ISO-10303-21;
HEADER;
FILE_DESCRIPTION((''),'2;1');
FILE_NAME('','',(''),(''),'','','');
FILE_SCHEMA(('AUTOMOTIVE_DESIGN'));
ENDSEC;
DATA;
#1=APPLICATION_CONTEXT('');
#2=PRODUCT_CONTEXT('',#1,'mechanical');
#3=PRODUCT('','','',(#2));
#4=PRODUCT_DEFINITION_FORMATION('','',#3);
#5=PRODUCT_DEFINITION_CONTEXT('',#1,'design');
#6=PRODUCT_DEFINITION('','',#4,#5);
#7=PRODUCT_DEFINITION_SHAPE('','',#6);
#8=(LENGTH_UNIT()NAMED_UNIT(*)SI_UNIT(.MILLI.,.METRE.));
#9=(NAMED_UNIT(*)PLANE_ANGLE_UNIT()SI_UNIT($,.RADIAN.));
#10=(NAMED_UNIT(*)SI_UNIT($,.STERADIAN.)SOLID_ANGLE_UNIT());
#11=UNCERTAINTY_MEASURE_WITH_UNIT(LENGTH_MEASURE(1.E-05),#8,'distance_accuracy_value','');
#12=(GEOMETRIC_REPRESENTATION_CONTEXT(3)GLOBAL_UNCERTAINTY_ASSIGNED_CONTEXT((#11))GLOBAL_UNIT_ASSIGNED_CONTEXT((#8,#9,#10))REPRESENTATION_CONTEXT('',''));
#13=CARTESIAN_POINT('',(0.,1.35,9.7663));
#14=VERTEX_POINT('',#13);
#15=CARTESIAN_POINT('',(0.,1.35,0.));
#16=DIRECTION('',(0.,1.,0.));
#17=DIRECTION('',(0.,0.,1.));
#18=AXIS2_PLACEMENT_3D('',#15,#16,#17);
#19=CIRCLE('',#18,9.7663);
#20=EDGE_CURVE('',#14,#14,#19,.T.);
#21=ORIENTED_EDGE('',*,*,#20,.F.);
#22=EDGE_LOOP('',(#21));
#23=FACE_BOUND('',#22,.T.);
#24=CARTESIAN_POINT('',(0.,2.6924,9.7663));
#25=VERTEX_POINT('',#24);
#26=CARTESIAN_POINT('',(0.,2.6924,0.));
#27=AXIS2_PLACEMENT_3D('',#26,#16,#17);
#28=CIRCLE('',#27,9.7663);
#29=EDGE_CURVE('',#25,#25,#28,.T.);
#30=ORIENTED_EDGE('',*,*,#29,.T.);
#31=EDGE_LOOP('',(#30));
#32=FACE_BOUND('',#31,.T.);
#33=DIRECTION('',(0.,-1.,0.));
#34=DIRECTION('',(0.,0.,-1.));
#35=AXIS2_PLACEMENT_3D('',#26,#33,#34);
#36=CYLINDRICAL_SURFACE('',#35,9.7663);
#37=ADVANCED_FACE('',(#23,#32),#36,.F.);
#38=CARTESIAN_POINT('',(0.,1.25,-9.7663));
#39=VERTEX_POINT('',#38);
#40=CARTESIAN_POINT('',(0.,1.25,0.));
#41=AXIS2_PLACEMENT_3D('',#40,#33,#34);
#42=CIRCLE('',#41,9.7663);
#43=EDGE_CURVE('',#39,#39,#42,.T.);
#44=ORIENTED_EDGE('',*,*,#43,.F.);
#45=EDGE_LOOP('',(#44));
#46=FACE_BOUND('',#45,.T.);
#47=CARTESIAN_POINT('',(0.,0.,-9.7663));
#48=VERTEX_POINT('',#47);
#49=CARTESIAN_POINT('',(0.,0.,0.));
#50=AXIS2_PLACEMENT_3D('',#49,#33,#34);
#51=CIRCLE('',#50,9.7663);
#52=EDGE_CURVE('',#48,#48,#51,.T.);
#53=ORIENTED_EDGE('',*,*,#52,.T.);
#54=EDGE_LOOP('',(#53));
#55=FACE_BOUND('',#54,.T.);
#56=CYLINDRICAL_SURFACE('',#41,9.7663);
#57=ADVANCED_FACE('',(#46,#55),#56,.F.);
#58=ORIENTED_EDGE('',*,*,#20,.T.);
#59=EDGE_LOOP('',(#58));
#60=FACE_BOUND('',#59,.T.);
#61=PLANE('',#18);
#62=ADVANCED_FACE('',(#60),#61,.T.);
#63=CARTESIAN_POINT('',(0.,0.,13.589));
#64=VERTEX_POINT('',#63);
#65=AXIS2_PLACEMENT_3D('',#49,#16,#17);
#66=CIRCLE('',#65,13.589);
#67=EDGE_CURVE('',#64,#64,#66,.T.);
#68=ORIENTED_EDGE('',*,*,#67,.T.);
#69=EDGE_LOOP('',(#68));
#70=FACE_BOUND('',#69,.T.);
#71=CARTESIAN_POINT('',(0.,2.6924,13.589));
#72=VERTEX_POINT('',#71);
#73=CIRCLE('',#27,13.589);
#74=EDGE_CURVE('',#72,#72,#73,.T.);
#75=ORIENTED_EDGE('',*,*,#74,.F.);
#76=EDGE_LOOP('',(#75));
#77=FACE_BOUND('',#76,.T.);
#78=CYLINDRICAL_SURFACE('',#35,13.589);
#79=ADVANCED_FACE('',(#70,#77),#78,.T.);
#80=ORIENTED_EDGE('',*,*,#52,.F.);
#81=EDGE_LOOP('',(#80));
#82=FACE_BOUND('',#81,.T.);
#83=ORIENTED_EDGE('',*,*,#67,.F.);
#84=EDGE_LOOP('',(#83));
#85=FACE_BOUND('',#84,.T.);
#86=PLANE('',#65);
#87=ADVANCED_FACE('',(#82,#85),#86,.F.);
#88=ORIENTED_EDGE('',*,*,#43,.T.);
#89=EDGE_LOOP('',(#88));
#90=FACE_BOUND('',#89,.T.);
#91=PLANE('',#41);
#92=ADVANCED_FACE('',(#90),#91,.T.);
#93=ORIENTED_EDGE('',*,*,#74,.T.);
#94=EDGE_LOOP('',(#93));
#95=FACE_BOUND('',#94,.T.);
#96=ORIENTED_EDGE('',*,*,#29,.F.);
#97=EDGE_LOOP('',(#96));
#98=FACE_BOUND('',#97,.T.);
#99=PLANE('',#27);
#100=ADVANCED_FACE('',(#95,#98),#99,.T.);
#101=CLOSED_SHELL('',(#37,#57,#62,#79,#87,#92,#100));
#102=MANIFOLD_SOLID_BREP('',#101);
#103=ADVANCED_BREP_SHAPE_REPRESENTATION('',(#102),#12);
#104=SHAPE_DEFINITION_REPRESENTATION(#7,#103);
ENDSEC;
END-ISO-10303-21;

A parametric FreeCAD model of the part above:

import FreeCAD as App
import Part
import Sketcher

V = App.Vector
Q = App.Units.Quantity

doc = App.newDocument("Part")
body = doc.addObject("PartDesign::Body", "Body")

sketch1 = body.newObject("Sketcher::SketchObject", "Sketch")
sketch1.AttachmentSupport = (doc.getObject("XZ_Plane"), [""])
sketch1.MapMode = "FlatFace"
sketch1.addGeometry([
    Part.Circle(V(0, 0, 0), V(0, 0, 1), 14),
    Part.Circle(V(0, 0, 0), V(0, 0, 1), 10),
], False)
sketch1.addConstraint([
    Sketcher.Constraint("Coincident", 0, 3, -1, 1),
    Sketcher.Constraint("Coincident", 1, 3, -1, 1),
    Sketcher.Constraint("Diameter", 0, Q("1.07 in")),
    Sketcher.Constraint("Diameter", 1, Q("0.769 in")),
])
pad1 = body.newObject("PartDesign::Pad", "Pad")
pad1.Profile = sketch1
pad1.Length = Q("0.106 in")
pad1.Reversed = True

sketch2 = body.newObject("Sketcher::SketchObject", "Sketch001")
sketch2.AttachmentSupport = (doc.getObject("XZ_Plane"), [""])
sketch2.MapMode = "FlatFace"
sketch2.addGeometry(Part.Circle(V(0, 0, 0), V(0, 0, 1), 10), False)
sketch2.addConstraint([
    Sketcher.Constraint("Coincident", 0, 3, -1, 1),
    Sketcher.Constraint("Diameter", 0, Q("0.769 in")),
])
pad2 = body.newObject("PartDesign::Pad", "Pad001")
pad2.Profile = sketch2
pad2.Length = 1.35
pad2.Reversed = True

sketch3 = body.newObject("Sketcher::SketchObject", "Sketch002")
sketch3.AttachmentSupport = (doc.getObject("XZ_Plane"), [""])
sketch3.MapMode = "FlatFace"
sketch3.addGeometry(Part.Circle(V(0, 0, 0), V(0, 0, 1), 10), False)
sketch3.addConstraint([
    Sketcher.Constraint("Coincident", 0, 3, -1, 1),
    Sketcher.Constraint("Diameter", 0, Q("0.769 in")),
])
pocket1 = body.newObject("PartDesign::Pocket", "Pocket")
pocket1.Profile = sketch3
pocket1.Length = 1.25

doc.recompute()
